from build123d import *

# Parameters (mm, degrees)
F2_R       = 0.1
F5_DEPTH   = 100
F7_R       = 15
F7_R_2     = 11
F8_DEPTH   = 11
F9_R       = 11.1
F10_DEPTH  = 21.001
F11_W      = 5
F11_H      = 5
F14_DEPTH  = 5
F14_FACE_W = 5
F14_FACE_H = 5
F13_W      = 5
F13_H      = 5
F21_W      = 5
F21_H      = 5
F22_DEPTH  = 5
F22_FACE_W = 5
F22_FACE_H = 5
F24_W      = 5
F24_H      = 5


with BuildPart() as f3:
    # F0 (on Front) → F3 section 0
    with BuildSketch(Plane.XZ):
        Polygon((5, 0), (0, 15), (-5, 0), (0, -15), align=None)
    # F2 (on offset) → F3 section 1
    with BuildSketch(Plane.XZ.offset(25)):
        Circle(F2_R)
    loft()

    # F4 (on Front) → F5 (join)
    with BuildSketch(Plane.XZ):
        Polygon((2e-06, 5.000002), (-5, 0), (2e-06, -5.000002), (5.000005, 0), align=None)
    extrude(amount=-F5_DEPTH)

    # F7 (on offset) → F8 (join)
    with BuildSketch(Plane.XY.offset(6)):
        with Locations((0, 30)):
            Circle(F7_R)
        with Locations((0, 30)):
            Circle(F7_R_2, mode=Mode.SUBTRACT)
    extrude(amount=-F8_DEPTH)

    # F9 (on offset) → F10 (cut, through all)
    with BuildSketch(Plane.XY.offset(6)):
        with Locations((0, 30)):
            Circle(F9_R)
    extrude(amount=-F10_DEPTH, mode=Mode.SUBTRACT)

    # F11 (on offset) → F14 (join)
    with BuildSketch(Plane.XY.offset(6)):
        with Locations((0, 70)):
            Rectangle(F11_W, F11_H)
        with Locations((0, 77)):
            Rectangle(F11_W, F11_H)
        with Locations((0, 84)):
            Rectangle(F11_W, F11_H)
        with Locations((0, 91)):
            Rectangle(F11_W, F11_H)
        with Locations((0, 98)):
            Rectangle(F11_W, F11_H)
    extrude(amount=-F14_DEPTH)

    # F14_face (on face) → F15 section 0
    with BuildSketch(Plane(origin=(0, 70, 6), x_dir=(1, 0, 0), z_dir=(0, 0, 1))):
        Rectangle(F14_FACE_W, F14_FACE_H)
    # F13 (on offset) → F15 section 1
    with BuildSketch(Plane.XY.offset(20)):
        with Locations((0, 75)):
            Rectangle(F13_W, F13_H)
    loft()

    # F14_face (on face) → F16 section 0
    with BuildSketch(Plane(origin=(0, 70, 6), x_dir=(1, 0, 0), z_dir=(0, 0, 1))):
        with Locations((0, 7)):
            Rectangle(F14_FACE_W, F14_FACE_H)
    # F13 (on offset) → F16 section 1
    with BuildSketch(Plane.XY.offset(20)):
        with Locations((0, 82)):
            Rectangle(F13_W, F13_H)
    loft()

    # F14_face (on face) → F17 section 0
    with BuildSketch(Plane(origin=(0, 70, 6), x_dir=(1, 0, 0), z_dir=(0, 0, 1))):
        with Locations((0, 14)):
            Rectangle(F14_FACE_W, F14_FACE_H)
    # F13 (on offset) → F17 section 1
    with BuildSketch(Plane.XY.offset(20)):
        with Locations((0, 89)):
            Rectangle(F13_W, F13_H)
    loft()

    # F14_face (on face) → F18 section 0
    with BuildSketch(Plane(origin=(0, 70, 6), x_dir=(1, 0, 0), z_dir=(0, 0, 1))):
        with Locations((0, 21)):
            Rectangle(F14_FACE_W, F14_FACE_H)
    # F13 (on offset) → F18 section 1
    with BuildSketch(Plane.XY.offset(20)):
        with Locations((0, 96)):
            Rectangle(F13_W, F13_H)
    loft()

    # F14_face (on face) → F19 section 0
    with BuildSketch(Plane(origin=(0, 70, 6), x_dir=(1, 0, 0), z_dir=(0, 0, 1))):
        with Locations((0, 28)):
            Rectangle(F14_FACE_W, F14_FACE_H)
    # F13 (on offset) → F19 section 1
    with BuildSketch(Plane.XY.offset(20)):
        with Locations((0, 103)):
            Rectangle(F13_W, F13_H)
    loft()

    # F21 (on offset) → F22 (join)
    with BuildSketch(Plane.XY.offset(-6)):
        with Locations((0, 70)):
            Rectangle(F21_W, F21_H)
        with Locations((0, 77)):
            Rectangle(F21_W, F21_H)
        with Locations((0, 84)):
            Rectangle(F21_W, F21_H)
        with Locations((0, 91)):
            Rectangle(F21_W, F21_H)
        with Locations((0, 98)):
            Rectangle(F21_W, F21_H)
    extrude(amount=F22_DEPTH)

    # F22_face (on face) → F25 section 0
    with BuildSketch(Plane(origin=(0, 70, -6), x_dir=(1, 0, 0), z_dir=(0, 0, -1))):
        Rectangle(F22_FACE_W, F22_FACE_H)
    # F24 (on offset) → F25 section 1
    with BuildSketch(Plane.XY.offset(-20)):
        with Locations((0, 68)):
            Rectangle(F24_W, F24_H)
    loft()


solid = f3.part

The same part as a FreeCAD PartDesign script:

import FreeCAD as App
import Part
import Sketcher
from FreeCAD import Vector
Q = App.Units.Quantity

doc = App.newDocument("Part")
body = doc.addObject("PartDesign::Body", "Body")

# Sketch on XZ plane
sketch1 = body.newObject("Sketcher::SketchObject", "Sketch")
sketch1.AttachmentSupport = (doc.getObject("XZ_Plane"), [""])
sketch1.MapMode = "FlatFace"
sketch1.addGeometry(Part.LineSegment(Vector(5, 0, 0), Vector(0, 15, 0)), False)
sketch1.addGeometry(Part.LineSegment(Vector(0, 15, 0), Vector(-5, 0, 0)), False)
sketch1.addGeometry(Part.LineSegment(Vector(-5, 0, 0), Vector(0, -15, 0)), False)
sketch1.addGeometry(Part.LineSegment(Vector(0, -15, 0), Vector(5, 0, 0)), False)
sketch1.addConstraint(Sketcher.Constraint("Coincident", 0, 2, 1, 1))
sketch1.addConstraint(Sketcher.Constraint("Coincident", 1, 2, 2, 1))
sketch1.addConstraint(Sketcher.Constraint("Coincident", 2, 2, 3, 1))
sketch1.addConstraint(Sketcher.Constraint("Coincident", 3, 2, 0, 1))
sketch1.addConstraint(Sketcher.Constraint("Symmetric", 0, 2, 2, 2, -1, 1))
sketch1.addConstraint(Sketcher.Constraint("Symmetric", 1, 2, 3, 2, -1, 1))
sketch1.addConstraint(Sketcher.Constraint("PointOnObject", 0, 2, -2))
sketch1.addConstraint(Sketcher.Constraint("PointOnObject", 1, 2, -1))
sketch1.addConstraint(Sketcher.Constraint("DistanceY", -1, 1, 0, 2, Q("15 mm")))
sketch1.addConstraint(Sketcher.Constraint("DistanceX", 1, 2, -1, 1, Q("5 mm")))

# Sketch on XZ plane
sketch2 = body.newObject("Sketcher::SketchObject", "Sketch001")
sketch2.AttachmentSupport = (doc.getObject("XZ_Plane"), [""])
sketch2.MapMode = "FlatFace"
sketch2.AttachmentOffset = App.Placement(Vector(0, 0, 25), App.Rotation())
sketch2.addGeometry(Part.Circle(Vector(0, 0, 0), Vector(0, 0, 1), 0.1), False)
sketch2.addConstraint(Sketcher.Constraint("Coincident", 0, 3, -1, 1))
sketch2.addConstraint(Sketcher.Constraint("Diameter", 0, Q("0.2 mm")))

additiveloft = body.newObject("PartDesign::AdditiveLoft", "AdditiveLoft")
additiveloft.Profile = sketch1
additiveloft.Sections = [sketch2]

# Sketch on XZ plane
sketch3 = body.newObject("Sketcher::SketchObject", "Sketch002")
sketch3.AttachmentSupport = (doc.getObject("XZ_Plane"), [""])
sketch3.MapMode = "FlatFace"
sketch3.addGeometry(Part.LineSegment(Vector(0, 5, 0), Vector(-5, 0, 0)), False)
sketch3.addGeometry(Part.LineSegment(Vector(-5, 0, 0), Vector(0, -5, 0)), False)
sketch3.addGeometry(Part.LineSegment(Vector(0, -5, 0), Vector(5, 0, 0)), False)
sketch3.addGeometry(Part.LineSegment(Vector(5, 0, 0), Vector(0, 5, 0)), False)
sketch3.addConstraint(Sketcher.Constraint("Coincident", 0, 2, 1, 1))
sketch3.addConstraint(Sketcher.Constraint("Coincident", 1, 2, 2, 1))
sketch3.addConstraint(Sketcher.Constraint("Coincident", 2, 2, 3, 1))
sketch3.addConstraint(Sketcher.Constraint("Coincident", 3, 2, 0, 1))
sketch3.addConstraint(Sketcher.Constraint("Symmetric", 0, 2, 2, 2, -1, 1))
sketch3.addConstraint(Sketcher.Constraint("Symmetric", 1, 2, 3, 2, -1, 1))
sketch3.addConstraint(Sketcher.Constraint("PointOnObject", 0, 2, -1))
sketch3.addConstraint(Sketcher.Constraint("Perpendicular", 0, 1))
sketch3.addConstraint(Sketcher.Constraint("Vertical", 1, 2, 3, 2))
sketch3.addConstraint(Sketcher.Constraint("DistanceX", 0, 2, -1, 1, Q("5 mm")))
pad1 = body.newObject("PartDesign::Pad", "Pad")
pad1.Profile = sketch3
pad1.Length = 100
pad1.Reversed = True

# Sketch on XY plane
sketch4 = body.newObject("Sketcher::SketchObject", "Sketch003")
sketch4.AttachmentSupport = (doc.getObject("XY_Plane"), [""])
sketch4.MapMode = "FlatFace"
sketch4.AttachmentOffset = App.Placement(Vector(0, 0, 6), App.Rotation())
sketch4.addGeometry(Part.Circle(Vector(0, 30, 0), Vector(0, 0, 1), 15), False)
sketch4.addGeometry(Part.Circle(Vector(0, 30, 0), Vector(0, 0, 1), 11), False)
sketch4.addConstraint(Sketcher.Constraint("Coincident", 1, 3, 0, 3))
sketch4.addConstraint(Sketcher.Constraint("PointOnObject", 0, 3, -2))
sketch4.addConstraint(Sketcher.Constraint("Diameter", 0, Q("30 mm")))
sketch4.addConstraint(Sketcher.Constraint("Diameter", 1, Q("22 mm")))
sketch4.addConstraint(Sketcher.Constraint("DistanceY", -1, 1, 0, 3, Q("30 mm")))
pad2 = body.newObject("PartDesign::Pad", "Pad001")
pad2.Profile = sketch4
pad2.Length = 11
pad2.Reversed = True

# Sketch on XY plane
sketch5 = body.newObject("Sketcher::SketchObject", "Sketch004")
sketch5.AttachmentSupport = (doc.getObject("XY_Plane"), [""])
sketch5.MapMode = "FlatFace"
sketch5.AttachmentOffset = App.Placement(Vector(0, 0, 6), App.Rotation())
sketch5.addGeometry(Part.Circle(Vector(0, 30, 0), Vector(0, 0, 1), 11), False)
sketch5.addConstraint(Sketcher.Constraint("PointOnObject", 0, 3, -2))
sketch5.addConstraint(Sketcher.Constraint("Diameter", 0, Q("22.2 mm")))
sketch5.addConstraint(Sketcher.Constraint("DistanceY", -1, 1, 0, 3, Q("30 mm")))
pocket1 = body.newObject("PartDesign::Pocket", "Pocket")
pocket1.Profile = sketch5
pocket1.Type = "ThroughAll"

# Sketch on XY plane
sketch6 = body.newObject("Sketcher::SketchObject", "Sketch005")
sketch6.AttachmentSupport = (doc.getObject("XY_Plane"), [""])
sketch6.MapMode = "FlatFace"
sketch6.AttachmentOffset = App.Placement(Vector(0, 0, 6), App.Rotation())
sketch6.addGeometry(Part.LineSegment(Vector(-2, 72, 0), Vector(-2, 68, 0)), False)
sketch6.addGeometry(Part.LineSegment(Vector(-2, 68, 0), Vector(2, 68, 0)), False)
sketch6.addGeometry(Part.LineSegment(Vector(2, 68, 0), Vector(2, 72, 0)), False)
sketch6.addGeometry(Part.LineSegment(Vector(2, 72, 0), Vector(-2, 72, 0)), False)
sketch6.addGeometry(Part.LineSegment(Vector(-2, 80, 0), Vector(-2, 74, 0)), False)
sketch6.addGeometry(Part.LineSegment(Vector(-2, 74, 0), Vector(2, 74, 0)), False)
sketch6.addGeometry(Part.LineSegment(Vector(2, 74, 0), Vector(2, 80, 0)), False)
sketch6.addGeometry(Part.LineSegment(Vector(2, 80, 0), Vector(-2, 80, 0)), False)
sketch6.addGeometry(Part.LineSegment(Vector(-2, 86, 0), Vector(-2, 82, 0)), False)
sketch6.addGeometry(Part.LineSegment(Vector(-2, 82, 0), Vector(2, 82, 0)), False)
sketch6.addGeometry(Part.LineSegment(Vector(2, 82, 0), Vector(2, 86, 0)), False)
sketch6.addGeometry(Part.LineSegment(Vector(2, 86, 0), Vector(-2, 86, 0)), False)
sketch6.addGeometry(Part.LineSegment(Vector(-2, 94, 0), Vector(-2, 88, 0)), False)
sketch6.addGeometry(Part.LineSegment(Vector(-2, 88, 0), Vector(2, 88, 0)), False)
sketch6.addGeometry(Part.LineSegment(Vector(2, 88, 0), Vector(2, 94, 0)), False)
sketch6.addGeometry(Part.LineSegment(Vector(2, 94, 0), Vector(-2, 94, 0)), False)
sketch6.addGeometry(Part.LineSegment(Vector(-2, 100, 0), Vector(-2, 96, 0)), False)
sketch6.addGeometry(Part.LineSegment(Vector(-2, 96, 0), Vector(2, 96, 0)), False)
sketch6.addGeometry(Part.LineSegment(Vector(2, 96, 0), Vector(2, 100, 0)), False)
sketch6.addGeometry(Part.LineSegment(Vector(2, 100, 0), Vector(-2, 100, 0)), False)
sketch6.addConstraint(Sketcher.Constraint("Coincident", 0, 2, 1, 1))
sketch6.addConstraint(Sketcher.Constraint("Coincident", 1, 2, 2, 1))
sketch6.addConstraint(Sketcher.Constraint("Coincident", 2, 2, 3, 1))
sketch6.addConstraint(Sketcher.Constraint("Coincident", 3, 2, 0, 1))
sketch6.addConstraint(Sketcher.Constraint("Coincident", 4, 2, 5, 1))
sketch6.addConstraint(Sketcher.Constraint("Coincident", 5, 2, 6, 1))
sketch6.addConstraint(Sketcher.Constraint("Coincident", 6, 2, 7, 1))
sketch6.addConstraint(Sketcher.Constraint("Coincident", 7, 2, 4, 1))
sketch6.addConstraint(Sketcher.Constraint("Coincident", 8, 2, 9, 1))
sketch6.addConstraint(Sketcher.Constraint("Coincident", 9, 2, 10, 1))
sketch6.addConstraint(Sketcher.Constraint("Coincident", 10, 2, 11, 1))
sketch6.addConstraint(Sketcher.Constraint("Coincident", 11, 2, 8, 1))
sketch6.addConstraint(Sketcher.Constraint("Coincident", 12, 2, 13, 1))
sketch6.addConstraint(Sketcher.Constraint("Coincident", 13, 2, 14, 1))
sketch6.addConstraint(Sketcher.Constraint("Coincident", 14, 2, 15, 1))
sketch6.addConstraint(Sketcher.Constraint("Coincident", 15, 2, 12, 1))
sketch6.addConstraint(Sketcher.Constraint("Coincident", 16, 2, 17, 1))
sketch6.addConstraint(Sketcher.Constraint("Coincident", 17, 2, 18, 1))
sketch6.addConstraint(Sketcher.Constraint("Coincident", 18, 2, 19, 1))
sketch6.addConstraint(Sketcher.Constraint("Coincident", 19, 2, 16, 1))
sketch6.addConstraint(Sketcher.Constraint("Vertical", 0))
sketch6.addConstraint(Sketcher.Constraint("Horizontal", 1))
sketch6.addConstraint(Sketcher.Constraint("Vertical", 2))
sketch6.addConstraint(Sketcher.Constraint("Horizontal", 3))
sketch6.addConstraint(Sketcher.Constraint("Vertical", 4))
sketch6.addConstraint(Sketcher.Constraint("Horizontal", 5))
sketch6.addConstraint(Sketcher.Constraint("Vertical", 6))
sketch6.addConstraint(Sketcher.Constraint("Horizontal", 7))
sketch6.addConstraint(Sketcher.Constraint("Vertical", 8))
sketch6.addConstraint(Sketcher.Constraint("Horizontal", 9))
sketch6.addConstraint(Sketcher.Constraint("Vertical", 10))
sketch6.addConstraint(Sketcher.Constraint("Horizontal", 11))
sketch6.addConstraint(Sketcher.Constraint("Vertical", 12))
sketch6.addConstraint(Sketcher.Constraint("Horizontal", 13))
sketch6.addConstraint(Sketcher.Constraint("Vertical", 14))
sketch6.addConstraint(Sketcher.Constraint("Horizontal", 15))
sketch6.addConstraint(Sketcher.Constraint("Vertical", 16))
sketch6.addConstraint(Sketcher.Constraint("Horizontal", 17))
sketch6.addConstraint(Sketcher.Constraint("Vertical", 18))
sketch6.addConstraint(Sketcher.Constraint("Horizontal", 19))
sketch6.addConstraint(Sketcher.Constraint("Vertical", 3, 2, 4, 2))
sketch6.addConstraint(Sketcher.Constraint("Vertical", 2, 2, 5, 2))
sketch6.addConstraint(Sketcher.Constraint("Vertical", 7, 2, 8, 2))
sketch6.addConstraint(Sketcher.Constraint("Vertical", 6, 2, 9, 2))
sketch6.addConstraint(Sketcher.Constraint("Vertical", 11, 2, 12, 2))
sketch6.addConstraint(Sketcher.Constraint("Vertical", 10, 2, 13, 2))
sketch6.addConstraint(Sketcher.Constraint("Vertical", 15, 2, 16, 2))
sketch6.addConstraint(Sketcher.Constraint("Vertical", 14, 2, 17, 2))
sketch6.addConstraint(Sketcher.Constraint("Equal", 19, 0))
sketch6.addConstraint(Sketcher.Constraint("Equal", 2, 4))
sketch6.addConstraint(Sketcher.Constraint("Equal", 6, 8))
sketch6.addConstraint(Sketcher.Constraint("Equal", 10, 12))
sketch6.addConstraint(Sketcher.Constraint("Equal", 14, 16))
sketch6.addConstraint(Sketcher.Constraint("DistanceX", 1, 1, 1, 2, Q("5 mm")))
sketch6.addConstraint(Sketcher.Constraint("DistanceY", 3, 2, 4, 2, Q("2 mm")))
sketch6.addConstraint(Sketcher.Constraint("DistanceY", 7, 2, 8, 2, Q("2 mm")))
sketch6.addConstraint(Sketcher.Constraint("DistanceY", 11, 2, 12, 2, Q("2 mm")))
sketch6.addConstraint(Sketcher.Constraint("DistanceY", 15, 2, 16, 2, Q("2 mm")))
sketch6.addConstraint(Sketcher.Constraint("DistanceX", 0, 2, -1, 1, Q("2.5 mm")))
sketch6.addConstraint(Sketcher.Constraint("DistanceY", -1, 1, 0, 2, Q("67.5 mm")))
pad3 = body.newObject("PartDesign::Pad", "Pad002")
pad3.Profile = sketch6
pad3.Length = 5
pad3.Reversed = True

# Sketch on XY plane
sketch7 = body.newObject("Sketcher::SketchObject", "Sketch006")
sketch7.AttachmentSupport = (doc.getObject("XY_Plane"), [""])
sketch7.MapMode = "FlatFace"
sketch7.AttachmentOffset = App.Placement(Vector(0, 0, 6), App.Rotation())
sketch7.addGeometry(Part.LineSegment(Vector(-2, 72, 0), Vector(-2, 68, 0)), False)
sketch7.addGeometry(Part.LineSegment(Vector(-2, 68, 0), Vector(2, 68, 0)), False)
sketch7.addGeometry(Part.LineSegment(Vector(2, 68, 0), Vector(2, 72, 0)), False)
sketch7.addGeometry(Part.LineSegment(Vector(2, 72, 0), Vector(-2, 72, 0)), False)
sketch7.addConstraint(Sketcher.Constraint("Coincident", 0, 2, 1, 1))
sketch7.addConstraint(Sketcher.Constraint("Coincident", 1, 2, 2, 1))
sketch7.addConstraint(Sketcher.Constraint("Coincident", 2, 2, 3, 1))
sketch7.addConstraint(Sketcher.Constraint("Coincident", 3, 2, 0, 1))
sketch7.addConstraint(Sketcher.Constraint("Vertical", 0))
sketch7.addConstraint(Sketcher.Constraint("Horizontal", 1))
sketch7.addConstraint(Sketcher.Constraint("Vertical", 2))
sketch7.addConstraint(Sketcher.Constraint("Horizontal", 3))
sketch7.addConstraint(Sketcher.Constraint("Equal", 3, 0))
sketch7.addConstraint(Sketcher.Constraint("DistanceX", 1, 1, 1, 2, Q("5 mm")))
sketch7.addConstraint(Sketcher.Constraint("DistanceX", 0, 2, -1, 1, Q("2.5 mm")))
sketch7.addConstraint(Sketcher.Constraint("DistanceY", -1, 1, 0, 2, Q("67.5 mm")))

# Sketch on XY plane
sketch8 = body.newObject("Sketcher::SketchObject", "Sketch007")
sketch8.AttachmentSupport = (doc.getObject("XY_Plane"), [""])
sketch8.MapMode = "FlatFace"
sketch8.AttachmentOffset = App.Placement(Vector(0, 0, 20), App.Rotation())
sketch8.addGeometry(Part.LineSegment(Vector(-2, 78, 0), Vector(-2, 72, 0)), False)
sketch8.addGeometry(Part.LineSegment(Vector(-2, 72, 0), Vector(2, 72, 0)), False)
sketch8.addGeometry(Part.LineSegment(Vector(2, 72, 0), Vector(2, 78, 0)), False)
sketch8.addGeometry(Part.LineSegment(Vector(2, 78, 0), Vector(-2, 78, 0)), False)
sketch8.addConstraint(Sketcher.Constraint("Coincident", 0, 2, 1, 1))
sketch8.addConstraint(Sketcher.Constraint("Coincident", 1, 2, 2, 1))
sketch8.addConstraint(Sketcher.Constraint("Coincident", 2, 2, 3, 1))
sketch8.addConstraint(Sketcher.Constraint("Coincident", 3, 2, 0, 1))
sketch8.addConstraint(Sketcher.Constraint("Vertical", 0))
sketch8.addConstraint(Sketcher.Constraint("Horizontal", 1))
sketch8.addConstraint(Sketcher.Constraint("Vertical", 2))
sketch8.addConstraint(Sketcher.Constraint("Horizontal", 3))
sketch8.addConstraint(Sketcher.Constraint("Equal", 3, 0))
sketch8.addConstraint(Sketcher.Constraint("DistanceX", 1, 1, 1, 2, Q("5 mm")))
sketch8.addConstraint(Sketcher.Constraint("DistanceX", 0, 2, -1, 1, Q("2.5 mm")))
sketch8.addConstraint(Sketcher.Constraint("DistanceY", -1, 1, 0, 2, Q("72.5 mm")))

additiveloft2 = body.newObject("PartDesign::AdditiveLoft", "AdditiveLoft001")
additiveloft2.Profile = sketch7
additiveloft2.Sections = [sketch8]

# Sketch on XY plane
sketch9 = body.newObject("Sketcher::SketchObject", "Sketch008")
sketch9.AttachmentSupport = (doc.getObject("XY_Plane"), [""])
sketch9.MapMode = "FlatFace"
sketch9.AttachmentOffset = App.Placement(Vector(0, 0, 6), App.Rotation())
sketch9.addGeometry(Part.LineSegment(Vector(-2, 80, 0), Vector(-2, 74, 0)), False)
sketch9.addGeometry(Part.LineSegment(Vector(-2, 74, 0), Vector(2, 74, 0)), False)
sketch9.addGeometry(Part.LineSegment(Vector(2, 74, 0), Vector(2, 80, 0)), False)
sketch9.addGeometry(Part.LineSegment(Vector(2, 80, 0), Vector(-2, 80, 0)), False)
sketch9.addConstraint(Sketcher.Constraint("Coincident", 0, 2, 1, 1))
sketch9.addConstraint(Sketcher.Constraint("Coincident", 1, 2, 2, 1))
sketch9.addConstraint(Sketcher.Constraint("Coincident", 2, 2, 3, 1))
sketch9.addConstraint(Sketcher.Constraint("Coincident", 3, 2, 0, 1))
sketch9.addConstraint(Sketcher.Constraint("Vertical", 0))
sketch9.addConstraint(Sketcher.Constraint("Horizontal", 1))
sketch9.addConstraint(Sketcher.Constraint("Vertical", 2))
sketch9.addConstraint(Sketcher.Constraint("Horizontal", 3))
sketch9.addConstraint(Sketcher.Constraint("Equal", 3, 0))
sketch9.addConstraint(Sketcher.Constraint("DistanceX", 1, 1, 1, 2, Q("5 mm")))
sketch9.addConstraint(Sketcher.Constraint("DistanceX", 0, 2, -1, 1, Q("2.5 mm")))
sketch9.addConstraint(Sketcher.Constraint("DistanceY", -1, 1, 0, 2, Q("74.5 mm")))

# Sketch on XY plane
sketch10 = body.newObject("Sketcher::SketchObject", "Sketch009")
sketch10.AttachmentSupport = (doc.getObject("XY_Plane"), [""])
sketch10.MapMode = "FlatFace"
sketch10.AttachmentOffset = App.Placement(Vector(0, 0, 20), App.Rotation())
sketch10.addGeometry(Part.LineSegment(Vector(-2, 84, 0), Vector(-2, 80, 0)), False)
sketch10.addGeometry(Part.LineSegment(Vector(-2, 80, 0), Vector(2, 80, 0)), False)
sketch10.addGeometry(Part.LineSegment(Vector(2, 80, 0), Vector(2, 84, 0)), False)
sketch10.addGeometry(Part.LineSegment(Vector(2, 84, 0), Vector(-2, 84, 0)), False)
sketch10.addConstraint(Sketcher.Constraint("Coincident", 0, 2, 1, 1))
sketch10.addConstraint(Sketcher.Constraint("Coincident", 1, 2, 2, 1))
sketch10.addConstraint(Sketcher.Constraint("Coincident", 2, 2, 3, 1))
sketch10.addConstraint(Sketcher.Constraint("Coincident", 3, 2, 0, 1))
sketch10.addConstraint(Sketcher.Constraint("Vertical", 0))
sketch10.addConstraint(Sketcher.Constraint("Horizontal", 1))
sketch10.addConstraint(Sketcher.Constraint("Vertical", 2))
sketch10.addConstraint(Sketcher.Constraint("Horizontal", 3))
sketch10.addConstraint(Sketcher.Constraint("Equal", 3, 0))
sketch10.addConstraint(Sketcher.Constraint("DistanceX", 1, 1, 1, 2, Q("5 mm")))
sketch10.addConstraint(Sketcher.Constraint("DistanceX", 0, 2, -1, 1, Q("2.5 mm")))
sketch10.addConstraint(Sketcher.Constraint("DistanceY", -1, 1, 0, 2, Q("79.5 mm")))

additiveloft3 = body.newObject("PartDesign::AdditiveLoft", "AdditiveLoft002")
additiveloft3.Profile = sketch9
additiveloft3.Sections = [sketch10]

# Sketch on XY plane
sketch11 = body.newObject("Sketcher::SketchObject", "Sketch010")
sketch11.AttachmentSupport = (doc.getObject("XY_Plane"), [""])
sketch11.MapMode = "FlatFace"
sketch11.AttachmentOffset = App.Placement(Vector(0, 0, 6), App.Rotation())
sketch11.addGeometry(Part.LineSegment(Vector(-2, 86, 0), Vector(-2, 82, 0)), False)
sketch11.addGeometry(Part.LineSegment(Vector(-2, 82, 0), Vector(2, 82, 0)), False)
sketch11.addGeometry(Part.LineSegment(Vector(2, 82, 0), Vector(2, 86, 0)), False)
sketch11.addGeometry(Part.LineSegment(Vector(2, 86, 0), Vector(-2, 86, 0)), False)
sketch11.addConstraint(Sketcher.Constraint("Coincident", 0, 2, 1, 1))
sketch11.addConstraint(Sketcher.Constraint("Coincident", 1, 2, 2, 1))
sketch11.addConstraint(Sketcher.Constraint("Coincident", 2, 2, 3, 1))
sketch11.addConstraint(Sketcher.Constraint("Coincident", 3, 2, 0, 1))
sketch11.addConstraint(Sketcher.Constraint("Vertical", 0))
sketch11.addConstraint(Sketcher.Constraint("Horizontal", 1))
sketch11.addConstraint(Sketcher.Constraint("Vertical", 2))
sketch11.addConstraint(Sketcher.Constraint("Horizontal", 3))
sketch11.addConstraint(Sketcher.Constraint("Equal", 3, 0))
sketch11.addConstraint(Sketcher.Constraint("DistanceX", 1, 1, 1, 2, Q("5 mm")))
sketch11.addConstraint(Sketcher.Constraint("DistanceX", 0, 2, -1, 1, Q("2.5 mm")))
sketch11.addConstraint(Sketcher.Constraint("DistanceY", -1, 1, 0, 2, Q("81.5 mm")))

# Sketch on XY plane
sketch12 = body.newObject("Sketcher::SketchObject", "Sketch011")
sketch12.AttachmentSupport = (doc.getObject("XY_Plane"), [""])
sketch12.MapMode = "FlatFace"
sketch12.AttachmentOffset = App.Placement(Vector(0, 0, 20), App.Rotation())
sketch12.addGeometry(Part.LineSegment(Vector(-2, 92, 0), Vector(-2, 86, 0)), False)
sketch12.addGeometry(Part.LineSegment(Vector(-2, 86, 0), Vector(2, 86, 0)), False)
sketch12.addGeometry(Part.LineSegment(Vector(2, 86, 0), Vector(2, 92, 0)), False)
sketch12.addGeometry(Part.LineSegment(Vector(2, 92, 0), Vector(-2, 92, 0)), False)
sketch12.addConstraint(Sketcher.Constraint("Coincident", 0, 2, 1, 1))
sketch12.addConstraint(Sketcher.Constraint("Coincident", 1, 2, 2, 1))
sketch12.addConstraint(Sketcher.Constraint("Coincident", 2, 2, 3, 1))
sketch12.addConstraint(Sketcher.Constraint("Coincident", 3, 2, 0, 1))
sketch12.addConstraint(Sketcher.Constraint("Vertical", 0))
sketch12.addConstraint(Sketcher.Constraint("Horizontal", 1))
sketch12.addConstraint(Sketcher.Constraint("Vertical", 2))
sketch12.addConstraint(Sketcher.Constraint("Horizontal", 3))
sketch12.addConstraint(Sketcher.Constraint("Equal", 3, 0))
sketch12.addConstraint(Sketcher.Constraint("DistanceX", 1, 1, 1, 2, Q("5 mm")))
sketch12.addConstraint(Sketcher.Constraint("DistanceX", 0, 2, -1, 1, Q("2.5 mm")))
sketch12.addConstraint(Sketcher.Constraint("DistanceY", -1, 1, 0, 2, Q("86.5 mm")))

additiveloft4 = body.newObject("PartDesign::AdditiveLoft", "AdditiveLoft003")
additiveloft4.Profile = sketch11
additiveloft4.Sections = [sketch12]

# Sketch on XY plane
sketch13 = body.newObject("Sketcher::SketchObject", "Sketch012")
sketch13.AttachmentSupport = (doc.getObject("XY_Plane"), [""])
sketch13.MapMode = "FlatFace"
sketch13.AttachmentOffset = App.Placement(Vector(0, 0, 6), App.Rotation())
sketch13.addGeometry(Part.LineSegment(Vector(-2, 94, 0), Vector(-2, 88, 0)), False)
sketch13.addGeometry(Part.LineSegment(Vector(-2, 88, 0), Vector(2, 88, 0)), False)
sketch13.addGeometry(Part.LineSegment(Vector(2, 88, 0), Vector(2, 94, 0)), False)
sketch13.addGeometry(Part.LineSegment(Vector(2, 94, 0), Vector(-2, 94, 0)), False)
sketch13.addConstraint(Sketcher.Constraint("Coincident", 0, 2, 1, 1))
sketch13.addConstraint(Sketcher.Constraint("Coincident", 1, 2, 2, 1))
sketch13.addConstraint(Sketcher.Constraint("Coincident", 2, 2, 3, 1))
sketch13.addConstraint(Sketcher.Constraint("Coincident", 3, 2, 0, 1))
sketch13.addConstraint(Sketcher.Constraint("Vertical", 0))
sketch13.addConstraint(Sketcher.Constraint("Horizontal", 1))
sketch13.addConstraint(Sketcher.Constraint("Vertical", 2))
sketch13.addConstraint(Sketcher.Constraint("Horizontal", 3))
sketch13.addConstraint(Sketcher.Constraint("Equal", 3, 0))
sketch13.addConstraint(Sketcher.Constraint("DistanceX", 1, 1, 1, 2, Q("5 mm")))
sketch13.addConstraint(Sketcher.Constraint("DistanceX", 0, 2, -1, 1, Q("2.5 mm")))
sketch13.addConstraint(Sketcher.Constraint("DistanceY", -1, 1, 0, 2, Q("88.5 mm")))

# Sketch on XY plane
sketch14 = body.newObject("Sketcher::SketchObject", "Sketch013")
sketch14.AttachmentSupport = (doc.getObject("XY_Plane"), [""])
sketch14.MapMode = "FlatFace"
sketch14.AttachmentOffset = App.Placement(Vector(0, 0, 20), App.Rotation())
sketch14.addGeometry(Part.LineSegment(Vector(-2, 98, 0), Vector(-2, 94, 0)), False)
sketch14.addGeometry(Part.LineSegment(Vector(-2, 94, 0), Vector(2, 94, 0)), False)
sketch14.addGeometry(Part.LineSegment(Vector(2, 94, 0), Vector(2, 98, 0)), False)
sketch14.addGeometry(Part.LineSegment(Vector(2, 98, 0), Vector(-2, 98, 0)), False)
sketch14.addConstraint(Sketcher.Constraint("Coincident", 0, 2, 1, 1))
sketch14.addConstraint(Sketcher.Constraint("Coincident", 1, 2, 2, 1))
sketch14.addConstraint(Sketcher.Constraint("Coincident", 2, 2, 3, 1))
sketch14.addConstraint(Sketcher.Constraint("Coincident", 3, 2, 0, 1))
sketch14.addConstraint(Sketcher.Constraint("Vertical", 0))
sketch14.addConstraint(Sketcher.Constraint("Horizontal", 1))
sketch14.addConstraint(Sketcher.Constraint("Vertical", 2))
sketch14.addConstraint(Sketcher.Constraint("Horizontal", 3))
sketch14.addConstraint(Sketcher.Constraint("Equal", 3, 0))
sketch14.addConstraint(Sketcher.Constraint("DistanceX", 1, 1, 1, 2, Q("5 mm")))
sketch14.addConstraint(Sketcher.Constraint("DistanceX", 0, 2, -1, 1, Q("2.5 mm")))
sketch14.addConstraint(Sketcher.Constraint("DistanceY", -1, 1, 0, 2, Q("93.5 mm")))

additiveloft5 = body.newObject("PartDesign::AdditiveLoft", "AdditiveLoft004")
additiveloft5.Profile = sketch13
additiveloft5.Sections = [sketch14]

# Sketch on XY plane
sketch15 = body.newObject("Sketcher::SketchObject", "Sketch014")
sketch15.AttachmentSupport = (doc.getObject("XY_Plane"), [""])
sketch15.MapMode = "FlatFace"
sketch15.AttachmentOffset = App.Placement(Vector(0, 0, 6), App.Rotation())
sketch15.addGeometry(Part.LineSegment(Vector(-2, 100, 0), Vector(-2, 96, 0)), False)
sketch15.addGeometry(Part.LineSegment(Vector(-2, 96, 0), Vector(2, 96, 0)), False)
sketch15.addGeometry(Part.LineSegment(Vector(2, 96, 0), Vector(2, 100, 0)), False)
sketch15.addGeometry(Part.LineSegment(Vector(2, 100, 0), Vector(-2, 100, 0)), False)
sketch15.addConstraint(Sketcher.Constraint("Coincident", 0, 2, 1, 1))
sketch15.addConstraint(Sketcher.Constraint("Coincident", 1, 2, 2, 1))
sketch15.addConstraint(Sketcher.Constraint("Coincident", 2, 2, 3, 1))
sketch15.addConstraint(Sketcher.Constraint("Coincident", 3, 2, 0, 1))
sketch15.addConstraint(Sketcher.Constraint("Vertical", 0))
sketch15.addConstraint(Sketcher.Constraint("Horizontal", 1))
sketch15.addConstraint(Sketcher.Constraint("Vertical", 2))
sketch15.addConstraint(Sketcher.Constraint("Horizontal", 3))
sketch15.addConstraint(Sketcher.Constraint("Equal", 3, 0))
sketch15.addConstraint(Sketcher.Constraint("DistanceX", 1, 1, 1, 2, Q("5 mm")))
sketch15.addConstraint(Sketcher.Constraint("DistanceX", 0, 2, -1, 1, Q("2.5 mm")))
sketch15.addConstraint(Sketcher.Constraint("DistanceY", -1, 1, 0, 2, Q("95.5 mm")))

# Sketch on XY plane
sketch16 = body.newObject("Sketcher::SketchObject", "Sketch015")
sketch16.AttachmentSupport = (doc.getObject("XY_Plane"), [""])
sketch16.MapMode = "FlatFace"
sketch16.AttachmentOffset = App.Placement(Vector(0, 0, 20), App.Rotation())
sketch16.addGeometry(Part.LineSegment(Vector(-2, 106, 0), Vector(-2, 100, 0)), False)
sketch16.addGeometry(Part.LineSegment(Vector(-2, 100, 0), Vector(2, 100, 0)), False)
sketch16.addGeometry(Part.LineSegment(Vector(2, 100, 0), Vector(2, 106, 0)), False)
sketch16.addGeometry(Part.LineSegment(Vector(2, 106, 0), Vector(-2, 106, 0)), False)
sketch16.addConstraint(Sketcher.Constraint("Coincident", 0, 2, 1, 1))
sketch16.addConstraint(Sketcher.Constraint("Coincident", 1, 2, 2, 1))
sketch16.addConstraint(Sketcher.Constraint("Coincident", 2, 2, 3, 1))
sketch16.addConstraint(Sketcher.Constraint("Coincident", 3, 2, 0, 1))
sketch16.addConstraint(Sketcher.Constraint("Vertical", 0))
sketch16.addConstraint(Sketcher.Constraint("Horizontal", 1))
sketch16.addConstraint(Sketcher.Constraint("Vertical", 2))
sketch16.addConstraint(Sketcher.Constraint("Horizontal", 3))
sketch16.addConstraint(Sketcher.Constraint("Equal", 3, 0))
sketch16.addConstraint(Sketcher.Constraint("DistanceX", 1, 1, 1, 2, Q("5 mm")))
sketch16.addConstraint(Sketcher.Constraint("DistanceX", 0, 2, -1, 1, Q("2.5 mm")))
sketch16.addConstraint(Sketcher.Constraint("DistanceY", -1, 1, 0, 2, Q("100.5 mm")))

additiveloft6 = body.newObject("PartDesign::AdditiveLoft", "AdditiveLoft005")
additiveloft6.Profile = sketch15
additiveloft6.Sections = [sketch16]

# Sketch on XY plane
sketch17 = body.newObject("Sketcher::SketchObject", "Sketch016")
sketch17.AttachmentSupport = (doc.getObject("XY_Plane"), [""])
sketch17.MapMode = "FlatFace"
sketch17.AttachmentOffset = App.Placement(Vector(0, 0, -6), App.Rotation())
sketch17.addGeometry(Part.LineSegment(Vector(-2, 72, 0), Vector(-2, 68, 0)), False)
sketch17.addGeometry(Part.LineSegment(Vector(-2, 68, 0), Vector(2, 68, 0)), False)
sketch17.addGeometry(Part.LineSegment(Vector(2, 68, 0), Vector(2, 72, 0)), False)
sketch17.addGeometry(Part.LineSegment(Vector(2, 72, 0), Vector(-2, 72, 0)), False)
sketch17.addGeometry(Part.LineSegment(Vector(-2, 80, 0), Vector(-2, 74, 0)), False)
sketch17.addGeometry(Part.LineSegment(Vector(-2, 74, 0), Vector(2, 74, 0)), False)
sketch17.addGeometry(Part.LineSegment(Vector(2, 74, 0), Vector(2, 80, 0)), False)
sketch17.addGeometry(Part.LineSegment(Vector(2, 80, 0), Vector(-2, 80, 0)), False)
sketch17.addGeometry(Part.LineSegment(Vector(-2, 86, 0), Vector(-2, 82, 0)), False)
sketch17.addGeometry(Part.LineSegment(Vector(-2, 82, 0), Vector(2, 82, 0)), False)
sketch17.addGeometry(Part.LineSegment(Vector(2, 82, 0), Vector(2, 86, 0)), False)
sketch17.addGeometry(Part.LineSegment(Vector(2, 86, 0), Vector(-2, 86, 0)), False)
sketch17.addGeometry(Part.LineSegment(Vector(-2, 94, 0), Vector(-2, 88, 0)), False)
sketch17.addGeometry(Part.LineSegment(Vector(-2, 88, 0), Vector(2, 88, 0)), False)
sketch17.addGeometry(Part.LineSegment(Vector(2, 88, 0), Vector(2, 94, 0)), False)
sketch17.addGeometry(Part.LineSegment(Vector(2, 94, 0), Vector(-2, 94, 0)), False)
sketch17.addGeometry(Part.LineSegment(Vector(-2, 100, 0), Vector(-2, 96, 0)), False)
sketch17.addGeometry(Part.LineSegment(Vector(-2, 96, 0), Vector(2, 96, 0)), False)
sketch17.addGeometry(Part.LineSegment(Vector(2, 96, 0), Vector(2, 100, 0)), False)
sketch17.addGeometry(Part.LineSegment(Vector(2, 100, 0), Vector(-2, 100, 0)), False)
sketch17.addConstraint(Sketcher.Constraint("Coincident", 0, 2, 1, 1))
sketch17.addConstraint(Sketcher.Constraint("Coincident", 1, 2, 2, 1))
sketch17.addConstraint(Sketcher.Constraint("Coincident", 2, 2, 3, 1))
sketch17.addConstraint(Sketcher.Constraint("Coincident", 3, 2, 0, 1))
sketch17.addConstraint(Sketcher.Constraint("Coincident", 4, 2, 5, 1))
sketch17.addConstraint(Sketcher.Constraint("Coincident", 5, 2, 6, 1))
sketch17.addConstraint(Sketcher.Constraint("Coincident", 6, 2, 7, 1))
sketch17.addConstraint(Sketcher.Constraint("Coincident", 7, 2, 4, 1))
sketch17.addConstraint(Sketcher.Constraint("Coincident", 8, 2, 9, 1))
sketch17.addConstraint(Sketcher.Constraint("Coincident", 9, 2, 10, 1))
sketch17.addConstraint(Sketcher.Constraint("Coincident", 10, 2, 11, 1))
sketch17.addConstraint(Sketcher.Constraint("Coincident", 11, 2, 8, 1))
sketch17.addConstraint(Sketcher.Constraint("Coincident", 12, 2, 13, 1))
sketch17.addConstraint(Sketcher.Constraint("Coincident", 13, 2, 14, 1))
sketch17.addConstraint(Sketcher.Constraint("Coincident", 14, 2, 15, 1))
sketch17.addConstraint(Sketcher.Constraint("Coincident", 15, 2, 12, 1))
sketch17.addConstraint(Sketcher.Constraint("Coincident", 16, 2, 17, 1))
sketch17.addConstraint(Sketcher.Constraint("Coincident", 17, 2, 18, 1))
sketch17.addConstraint(Sketcher.Constraint("Coincident", 18, 2, 19, 1))
sketch17.addConstraint(Sketcher.Constraint("Coincident", 19, 2, 16, 1))
sketch17.addConstraint(Sketcher.Constraint("Vertical", 0))
sketch17.addConstraint(Sketcher.Constraint("Horizontal", 1))
sketch17.addConstraint(Sketcher.Constraint("Vertical", 2))
sketch17.addConstraint(Sketcher.Constraint("Horizontal", 3))
sketch17.addConstraint(Sketcher.Constraint("Vertical", 4))
sketch17.addConstraint(Sketcher.Constraint("Horizontal", 5))
sketch17.addConstraint(Sketcher.Constraint("Vertical", 6))
sketch17.addConstraint(Sketcher.Constraint("Horizontal", 7))
sketch17.addConstraint(Sketcher.Constraint("Vertical", 8))
sketch17.addConstraint(Sketcher.Constraint("Horizontal", 9))
sketch17.addConstraint(Sketcher.Constraint("Vertical", 10))
sketch17.addConstraint(Sketcher.Constraint("Horizontal", 11))
sketch17.addConstraint(Sketcher.Constraint("Vertical", 12))
sketch17.addConstraint(Sketcher.Constraint("Horizontal", 13))
sketch17.addConstraint(Sketcher.Constraint("Vertical", 14))
sketch17.addConstraint(Sketcher.Constraint("Horizontal", 15))
sketch17.addConstraint(Sketcher.Constraint("Vertical", 16))
sketch17.addConstraint(Sketcher.Constraint("Horizontal", 17))
sketch17.addConstraint(Sketcher.Constraint("Vertical", 18))
sketch17.addConstraint(Sketcher.Constraint("Horizontal", 19))
sketch17.addConstraint(Sketcher.Constraint("Vertical", 3, 2, 4, 2))
sketch17.addConstraint(Sketcher.Constraint("Vertical", 2, 2, 5, 2))
sketch17.addConstraint(Sketcher.Constraint("Vertical", 7, 2, 8, 2))
sketch17.addConstraint(Sketcher.Constraint("Vertical", 6, 2, 9, 2))
sketch17.addConstraint(Sketcher.Constraint("Vertical", 11, 2, 12, 2))
sketch17.addConstraint(Sketcher.Constraint("Vertical", 10, 2, 13, 2))
sketch17.addConstraint(Sketcher.Constraint("Vertical", 15, 2, 16, 2))
sketch17.addConstraint(Sketcher.Constraint("Vertical", 14, 2, 17, 2))
sketch17.addConstraint(Sketcher.Constraint("Equal", 19, 0))
sketch17.addConstraint(Sketcher.Constraint("Equal", 2, 4))
sketch17.addConstraint(Sketcher.Constraint("Equal", 6, 8))
sketch17.addConstraint(Sketcher.Constraint("Equal", 10, 12))
sketch17.addConstraint(Sketcher.Constraint("Equal", 14, 16))
sketch17.addConstraint(Sketcher.Constraint("DistanceX", 1, 1, 1, 2, Q("5 mm")))
sketch17.addConstraint(Sketcher.Constraint("DistanceY", 3, 2, 4, 2, Q("2 mm")))
sketch17.addConstraint(Sketcher.Constraint("DistanceY", 7, 2, 8, 2, Q("2 mm")))
sketch17.addConstraint(Sketcher.Constraint("DistanceY", 11, 2, 12, 2, Q("2 mm")))
sketch17.addConstraint(Sketcher.Constraint("DistanceY", 15, 2, 16, 2, Q("2 mm")))
sketch17.addConstraint(Sketcher.Constraint("DistanceX", 0, 2, -1, 1, Q("2.5 mm")))
sketch17.addConstraint(Sketcher.Constraint("DistanceY", -1, 1, 0, 2, Q("67.5 mm")))
pad4 = body.newObject("PartDesign::Pad", "Pad003")
pad4.Profile = sketch17
pad4.Length = 5

# Sketch on XY plane
sketch18 = body.newObject("Sketcher::SketchObject", "Sketch017")
sketch18.AttachmentSupport = (doc.getObject("XY_Plane"), [""])
sketch18.MapMode = "FlatFace"
sketch18.AttachmentOffset = App.Placement(Vector(0, 0, -6), App.Rotation())
sketch18.addGeometry(Part.LineSegment(Vector(-2, 68, 0), Vector(-2, 72, 0)), False)
sketch18.addGeometry(Part.LineSegment(Vector(-2, 72, 0), Vector(2, 72, 0)), False)
sketch18.addGeometry(Part.LineSegment(Vector(2, 72, 0), Vector(2, 68, 0)), False)
sketch18.addGeometry(Part.LineSegment(Vector(2, 68, 0), Vector(-2, 68, 0)), False)
sketch18.addConstraint(Sketcher.Constraint("Coincident", 0, 2, 1, 1))
sketch18.addConstraint(Sketcher.Constraint("Coincident", 1, 2, 2, 1))
sketch18.addConstraint(Sketcher.Constraint("Coincident", 2, 2, 3, 1))
sketch18.addConstraint(Sketcher.Constraint("Coincident", 3, 2, 0, 1))
sketch18.addConstraint(Sketcher.Constraint("Vertical", 0))
sketch18.addConstraint(Sketcher.Constraint("Horizontal", 1))
sketch18.addConstraint(Sketcher.Constraint("Vertical", 2))
sketch18.addConstraint(Sketcher.Constraint("Horizontal", 3))
sketch18.addConstraint(Sketcher.Constraint("Equal", 3, 0))
sketch18.addConstraint(Sketcher.Constraint("DistanceX", 1, 1, 1, 2, Q("5 mm")))
sketch18.addConstraint(Sketcher.Constraint("DistanceX", 0, 2, -1, 1, Q("2.5 mm")))
sketch18.addConstraint(Sketcher.Constraint("DistanceY", -1, 1, 0, 2, Q("72.5 mm")))

# Sketch on XY plane
sketch19 = body.newObject("Sketcher::SketchObject", "Sketch018")
sketch19.AttachmentSupport = (doc.getObject("XY_Plane"), [""])
sketch19.MapMode = "FlatFace"
sketch19.AttachmentOffset = App.Placement(Vector(0, 0, -20), App.Rotation())
sketch19.addGeometry(Part.LineSegment(Vector(-2, 70, 0), Vector(-2, 66, 0)), False)
sketch19.addGeometry(Part.LineSegment(Vector(-2, 66, 0), Vector(2, 66, 0)), False)
sketch19.addGeometry(Part.LineSegment(Vector(2, 66, 0), Vector(2, 70, 0)), False)
sketch19.addGeometry(Part.LineSegment(Vector(2, 70, 0), Vector(-2, 70, 0)), False)
sketch19.addConstraint(Sketcher.Constraint("Coincident", 0, 2, 1, 1))
sketch19.addConstraint(Sketcher.Constraint("Coincident", 1, 2, 2, 1))
sketch19.addConstraint(Sketcher.Constraint("Coincident", 2, 2, 3, 1))
sketch19.addConstraint(Sketcher.Constraint("Coincident", 3, 2, 0, 1))
sketch19.addConstraint(Sketcher.Constraint("Vertical", 0))
sketch19.addConstraint(Sketcher.Constraint("Horizontal", 1))
sketch19.addConstraint(Sketcher.Constraint("Vertical", 2))
sketch19.addConstraint(Sketcher.Constraint("Horizontal", 3))
sketch19.addConstraint(Sketcher.Constraint("Equal", 3, 0))
sketch19.addConstraint(Sketcher.Constraint("DistanceX", 1, 1, 1, 2, Q("5 mm")))
sketch19.addConstraint(Sketcher.Constraint("DistanceX", 0, 2, -1, 1, Q("2.5 mm")))
sketch19.addConstraint(Sketcher.Constraint("DistanceY", -1, 1, 0, 2, Q("65.5 mm")))

additiveloft7 = body.newObject("PartDesign::AdditiveLoft", "AdditiveLoft006")
additiveloft7.Profile = sketch18
additiveloft7.Sections = [sketch19]

doc.recompute()
